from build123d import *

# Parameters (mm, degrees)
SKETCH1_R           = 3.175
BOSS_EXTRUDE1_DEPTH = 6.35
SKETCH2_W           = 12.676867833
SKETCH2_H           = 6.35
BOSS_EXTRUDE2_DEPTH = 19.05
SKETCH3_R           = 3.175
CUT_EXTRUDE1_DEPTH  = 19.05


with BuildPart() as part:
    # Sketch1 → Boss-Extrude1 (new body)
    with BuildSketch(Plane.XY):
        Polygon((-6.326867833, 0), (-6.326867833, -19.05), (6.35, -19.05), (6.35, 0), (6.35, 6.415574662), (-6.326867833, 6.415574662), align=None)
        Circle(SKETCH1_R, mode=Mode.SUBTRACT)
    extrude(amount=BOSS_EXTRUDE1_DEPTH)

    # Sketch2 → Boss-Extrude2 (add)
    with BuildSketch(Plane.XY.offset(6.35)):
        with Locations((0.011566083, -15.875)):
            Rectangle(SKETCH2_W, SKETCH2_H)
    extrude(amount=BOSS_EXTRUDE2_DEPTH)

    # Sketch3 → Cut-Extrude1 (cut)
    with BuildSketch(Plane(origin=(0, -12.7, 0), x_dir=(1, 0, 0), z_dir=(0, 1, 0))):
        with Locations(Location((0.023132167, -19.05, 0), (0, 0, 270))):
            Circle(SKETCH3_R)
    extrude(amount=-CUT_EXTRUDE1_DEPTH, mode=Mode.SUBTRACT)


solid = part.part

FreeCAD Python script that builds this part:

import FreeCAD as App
import Part
import Sketcher
Q = App.Units.Quantity

doc = App.newDocument("Part")
body = doc.addObject("PartDesign::Body", "Body")

# Sketch on XY plane
sketch1 = body.newObject("Sketcher::SketchObject", "Sketch")
sketch1.AttachmentSupport = (doc.getObject("XY_Plane"), [""])
sketch1.MapMode = "FlatFace"
sketch1.addGeometry([
    Part.LineSegment(App.Vector(-6.3, -19.1, 0), App.Vector(6.3, -19.1, 0)),  # 0
    Part.LineSegment(App.Vector(6.3, -19.1, 0), App.Vector(6.3, 6.4, 0)),  # 1
    Part.LineSegment(App.Vector(6.3, 6.4, 0), App.Vector(-6.3, 6.4, 0)),  # 2
    Part.LineSegment(App.Vector(-6.3, 6.4, 0), App.Vector(-6.3, -19.1, 0)),  # 3
    Part.Circle(App.Vector(0, 0, 0), App.Vector(0, 0, 1), 3.2),  # 4
], False)
sketch1.addConstraint([
    Sketcher.Constraint("Coincident", 0, 2, 1, 1),
    Sketcher.Constraint("Coincident", 1, 2, 2, 1),
    Sketcher.Constraint("Coincident", 2, 2, 3, 1),
    Sketcher.Constraint("Coincident", 3, 2, 0, 1),
    Sketcher.Constraint("Horizontal", 0),
    Sketcher.Constraint("Vertical", 1),
    Sketcher.Constraint("Horizontal", 2),
    Sketcher.Constraint("Vertical", 3),
    Sketcher.Constraint("Coincident", 4, 3, -1, 1),
    Sketcher.Constraint("Diameter", 4, Q("0.25 in")),
    Sketcher.Constraint("DistanceX", -1, 1, 0, 2, Q("0.25 in")),
    Sketcher.Constraint("DistanceY", 0, 2, -1, 1, Q("0.75 in")),
    Sketcher.Constraint("DistanceX", 0, 1, 0, 2, Q("12.676868 mm")),
    Sketcher.Constraint("DistanceY", 1, 1, 1, 2, Q("25.465575 mm")),
])
pad1 = body.newObject("PartDesign::Pad", "Pad")
pad1.Profile = sketch1
pad1.Length = Q("0.25 in")

# Sketch on XY plane
sketch2 = body.newObject("Sketcher::SketchObject", "Sketch001")
sketch2.AttachmentSupport = (doc.getObject("XY_Plane"), [""])
sketch2.MapMode = "FlatFace"
sketch2.AttachmentOffset = App.Placement(App.Vector(0, 0, 0.25 * 25.4), App.Rotation())
sketch2.addGeometry([
    Part.LineSegment(App.Vector(-6, -13, 0), App.Vector(-6, -19, 0)),
    Part.LineSegment(App.Vector(-6, -19, 0), App.Vector(6, -19, 0)),
    Part.LineSegment(App.Vector(6, -19, 0), App.Vector(6, -13, 0)),
    Part.LineSegment(App.Vector(6, -13, 0), App.Vector(-6, -13, 0)),
], False)
sketch2.addConstraint([
    Sketcher.Constraint("Coincident", 0, 2, 1, 1),
    Sketcher.Constraint("Coincident", 1, 2, 2, 1),
    Sketcher.Constraint("Coincident", 2, 2, 3, 1),
    Sketcher.Constraint("Coincident", 3, 2, 0, 1),
    Sketcher.Constraint("Vertical", 0),
    Sketcher.Constraint("Horizontal", 1),
    Sketcher.Constraint("Vertical", 2),
    Sketcher.Constraint("Horizontal", 3),
    Sketcher.Constraint("DistanceY", 0, 2, 0, 1, Q("0.25 in")),
    Sketcher.Constraint("DistanceY", 2, 2, -1, 1, Q("0.5 in")),
    Sketcher.Constraint("DistanceX", -1, 1, 1, 2, Q("0.25 in")),
    Sketcher.Constraint("DistanceX", 1, 1, 1, 2, Q("12.676868 mm")),
])
pad2 = body.newObject("PartDesign::Pad", "Pad001")
pad2.Profile = sketch2
pad2.Length = Q("0.75 in")

# Sketch on XZ plane
sketch3 = body.newObject("Sketcher::SketchObject", "Sketch002")
sketch3.AttachmentSupport = (doc.getObject("XZ_Plane"), [""])
sketch3.MapMode = "FlatFace"
sketch3.AttachmentOffset = App.Placement(App.Vector(0, 0, 0.5 * 25.4), App.Rotation())
sketch3.addGeometry(Part.Circle(App.Vector(0, 19.1, 0), App.Vector(0, 0, 1), 3.2), False)
sketch3.addConstraint([
    Sketcher.Constraint("Diameter", 0, Q("0.25 in")),
    Sketcher.Constraint("DistanceY", -1, 1, 0, 3, Q("0.75 in")),
    Sketcher.Constraint("DistanceX", -1, 1, 0, 3, Q("0.023132 mm")),
])
pocket1 = body.newObject("PartDesign::Pocket", "Pocket")
pocket1.Profile = sketch3
pocket1.Length = Q("0.75 in")
pocket1.Reversed = True

doc.recompute()
